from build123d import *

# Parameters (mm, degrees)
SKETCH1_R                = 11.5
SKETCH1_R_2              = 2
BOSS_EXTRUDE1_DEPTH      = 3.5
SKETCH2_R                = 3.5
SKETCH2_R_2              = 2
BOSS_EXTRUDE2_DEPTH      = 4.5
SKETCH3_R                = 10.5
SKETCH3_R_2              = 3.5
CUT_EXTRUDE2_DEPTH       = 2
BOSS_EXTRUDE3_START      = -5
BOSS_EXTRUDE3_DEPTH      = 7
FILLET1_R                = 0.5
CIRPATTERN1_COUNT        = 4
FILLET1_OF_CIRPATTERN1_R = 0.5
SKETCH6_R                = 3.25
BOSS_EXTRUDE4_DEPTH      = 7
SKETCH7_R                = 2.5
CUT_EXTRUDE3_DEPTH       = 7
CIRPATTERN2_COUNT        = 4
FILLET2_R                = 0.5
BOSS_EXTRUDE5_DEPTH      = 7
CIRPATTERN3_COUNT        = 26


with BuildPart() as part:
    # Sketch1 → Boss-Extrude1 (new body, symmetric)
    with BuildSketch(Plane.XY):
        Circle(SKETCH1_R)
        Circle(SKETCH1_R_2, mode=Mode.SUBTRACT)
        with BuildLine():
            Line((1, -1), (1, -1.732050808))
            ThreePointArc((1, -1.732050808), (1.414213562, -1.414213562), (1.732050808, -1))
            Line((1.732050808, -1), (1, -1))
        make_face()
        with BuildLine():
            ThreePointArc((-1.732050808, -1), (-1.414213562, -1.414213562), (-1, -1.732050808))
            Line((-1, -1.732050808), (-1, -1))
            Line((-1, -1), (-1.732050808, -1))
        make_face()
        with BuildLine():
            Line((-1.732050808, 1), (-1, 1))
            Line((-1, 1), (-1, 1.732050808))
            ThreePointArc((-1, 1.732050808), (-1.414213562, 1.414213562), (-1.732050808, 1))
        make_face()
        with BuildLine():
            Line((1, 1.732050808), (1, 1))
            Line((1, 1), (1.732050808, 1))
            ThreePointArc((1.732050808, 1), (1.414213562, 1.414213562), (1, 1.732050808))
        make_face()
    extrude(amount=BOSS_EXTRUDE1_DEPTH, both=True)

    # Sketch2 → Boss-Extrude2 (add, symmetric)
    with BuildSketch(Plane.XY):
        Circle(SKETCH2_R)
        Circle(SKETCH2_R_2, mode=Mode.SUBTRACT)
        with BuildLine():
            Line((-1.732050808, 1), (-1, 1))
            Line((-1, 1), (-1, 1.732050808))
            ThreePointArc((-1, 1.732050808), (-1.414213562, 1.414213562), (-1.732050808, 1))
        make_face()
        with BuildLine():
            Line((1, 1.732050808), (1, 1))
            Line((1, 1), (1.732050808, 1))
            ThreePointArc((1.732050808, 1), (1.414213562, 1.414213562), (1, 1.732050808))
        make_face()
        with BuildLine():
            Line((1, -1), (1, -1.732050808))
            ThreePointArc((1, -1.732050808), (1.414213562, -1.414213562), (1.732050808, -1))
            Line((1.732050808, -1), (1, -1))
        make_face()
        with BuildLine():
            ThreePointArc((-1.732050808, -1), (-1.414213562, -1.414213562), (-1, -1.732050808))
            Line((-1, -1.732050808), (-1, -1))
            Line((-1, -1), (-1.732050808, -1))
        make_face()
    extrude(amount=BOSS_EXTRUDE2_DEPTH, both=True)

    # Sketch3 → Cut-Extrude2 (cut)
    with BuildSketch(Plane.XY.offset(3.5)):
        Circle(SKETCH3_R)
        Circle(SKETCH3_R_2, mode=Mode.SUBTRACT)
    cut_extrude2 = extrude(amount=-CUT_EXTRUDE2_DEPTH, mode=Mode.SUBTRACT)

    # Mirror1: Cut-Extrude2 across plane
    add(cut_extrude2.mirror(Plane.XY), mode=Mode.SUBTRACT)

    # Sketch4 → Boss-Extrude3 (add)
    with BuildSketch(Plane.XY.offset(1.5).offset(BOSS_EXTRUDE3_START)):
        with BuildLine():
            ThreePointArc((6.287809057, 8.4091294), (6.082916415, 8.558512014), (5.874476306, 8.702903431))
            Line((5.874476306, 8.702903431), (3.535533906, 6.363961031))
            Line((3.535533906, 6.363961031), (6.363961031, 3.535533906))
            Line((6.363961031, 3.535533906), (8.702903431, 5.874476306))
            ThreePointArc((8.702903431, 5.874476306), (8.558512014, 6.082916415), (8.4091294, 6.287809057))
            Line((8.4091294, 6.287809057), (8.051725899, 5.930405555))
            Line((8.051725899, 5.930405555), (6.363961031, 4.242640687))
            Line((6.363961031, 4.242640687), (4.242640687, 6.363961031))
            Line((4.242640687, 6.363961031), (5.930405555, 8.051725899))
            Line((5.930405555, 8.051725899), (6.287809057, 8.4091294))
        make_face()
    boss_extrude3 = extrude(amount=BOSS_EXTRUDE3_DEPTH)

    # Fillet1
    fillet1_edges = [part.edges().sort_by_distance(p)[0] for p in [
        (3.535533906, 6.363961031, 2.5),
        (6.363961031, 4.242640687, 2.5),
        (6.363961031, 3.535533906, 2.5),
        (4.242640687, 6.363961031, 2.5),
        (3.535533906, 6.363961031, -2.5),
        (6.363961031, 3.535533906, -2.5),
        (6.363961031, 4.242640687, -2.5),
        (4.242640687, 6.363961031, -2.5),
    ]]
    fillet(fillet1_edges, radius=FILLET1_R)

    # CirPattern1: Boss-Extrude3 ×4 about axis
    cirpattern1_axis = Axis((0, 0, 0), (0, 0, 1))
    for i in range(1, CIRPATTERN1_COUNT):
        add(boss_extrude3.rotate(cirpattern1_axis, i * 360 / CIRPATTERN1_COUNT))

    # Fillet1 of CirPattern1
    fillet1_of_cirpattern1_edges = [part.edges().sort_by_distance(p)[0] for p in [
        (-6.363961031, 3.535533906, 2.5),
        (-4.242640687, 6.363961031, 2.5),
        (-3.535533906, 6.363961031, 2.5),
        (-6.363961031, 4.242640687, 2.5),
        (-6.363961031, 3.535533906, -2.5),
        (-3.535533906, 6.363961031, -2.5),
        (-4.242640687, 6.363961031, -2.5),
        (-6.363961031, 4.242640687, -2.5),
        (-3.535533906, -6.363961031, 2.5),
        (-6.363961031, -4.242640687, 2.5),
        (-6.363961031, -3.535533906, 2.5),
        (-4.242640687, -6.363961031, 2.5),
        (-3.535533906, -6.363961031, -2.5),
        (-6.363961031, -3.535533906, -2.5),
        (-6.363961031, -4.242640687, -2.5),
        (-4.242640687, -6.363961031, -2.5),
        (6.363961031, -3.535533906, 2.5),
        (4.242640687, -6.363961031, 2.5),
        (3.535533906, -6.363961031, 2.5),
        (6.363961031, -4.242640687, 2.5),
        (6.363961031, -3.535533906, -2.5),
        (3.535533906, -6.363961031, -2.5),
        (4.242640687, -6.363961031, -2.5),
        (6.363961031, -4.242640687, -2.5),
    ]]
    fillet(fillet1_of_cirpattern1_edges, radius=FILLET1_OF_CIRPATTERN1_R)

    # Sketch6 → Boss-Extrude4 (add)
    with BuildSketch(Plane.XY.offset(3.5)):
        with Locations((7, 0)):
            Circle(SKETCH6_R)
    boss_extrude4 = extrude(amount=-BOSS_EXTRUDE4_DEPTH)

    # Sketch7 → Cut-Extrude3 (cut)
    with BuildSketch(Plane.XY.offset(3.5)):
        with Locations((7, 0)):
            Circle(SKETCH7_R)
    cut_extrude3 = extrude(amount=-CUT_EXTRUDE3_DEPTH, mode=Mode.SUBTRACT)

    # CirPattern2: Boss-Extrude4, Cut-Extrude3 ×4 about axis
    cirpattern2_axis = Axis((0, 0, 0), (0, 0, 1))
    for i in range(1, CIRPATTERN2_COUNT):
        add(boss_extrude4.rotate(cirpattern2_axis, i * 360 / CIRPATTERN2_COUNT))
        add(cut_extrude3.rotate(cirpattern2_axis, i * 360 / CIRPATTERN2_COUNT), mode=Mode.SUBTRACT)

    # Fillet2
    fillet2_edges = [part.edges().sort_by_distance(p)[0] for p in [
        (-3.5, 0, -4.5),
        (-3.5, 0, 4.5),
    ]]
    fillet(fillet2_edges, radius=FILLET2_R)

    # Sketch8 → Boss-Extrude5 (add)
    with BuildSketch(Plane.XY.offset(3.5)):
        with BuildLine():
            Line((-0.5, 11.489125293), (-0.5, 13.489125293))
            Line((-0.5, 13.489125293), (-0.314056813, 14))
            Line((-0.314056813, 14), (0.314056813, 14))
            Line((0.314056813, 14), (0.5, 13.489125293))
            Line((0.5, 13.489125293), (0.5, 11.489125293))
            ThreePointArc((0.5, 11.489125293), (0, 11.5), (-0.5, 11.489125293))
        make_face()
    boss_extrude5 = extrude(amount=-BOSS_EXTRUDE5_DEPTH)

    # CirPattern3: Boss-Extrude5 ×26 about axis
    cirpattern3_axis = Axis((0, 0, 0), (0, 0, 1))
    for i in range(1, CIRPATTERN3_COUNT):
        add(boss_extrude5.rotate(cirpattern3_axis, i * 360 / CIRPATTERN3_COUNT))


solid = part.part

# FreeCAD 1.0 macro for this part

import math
import FreeCAD as App
import Part
import Sketcher
from FreeCAD import Vector
Q = App.Units.Quantity


def edges_at(feature, points):
    """Names of the edges that pass closest to the given points."""
    edges = feature.Shape.Edges
    near = lambda p: min(range(len(edges)), key=lambda i: edges[i].distToShape(Part.Vertex(*p))[0])
    return sorted({f"Edge{near(p) + 1}" for p in points})

doc = App.newDocument("Part")
body = doc.addObject("PartDesign::Body", "Body")

# Sketch on XY plane
sketch1 = body.newObject("Sketcher::SketchObject", "Sketch")
sketch1.AttachmentSupport = (doc.getObject("XY_Plane"), [""])
sketch1.MapMode = "FlatFace"
sketch1.addGeometry([
    Part.Circle(Vector(0, 0, 0), Vector(0, 0, 1), 11.5),  # 0
    Part.ArcOfCircle(Part.Circle(Vector(0, 0, 0), Vector(0, 0, 1), 2), math.radians(-120), math.radians(-60)),  # 1
    Part.LineSegment(Vector(-1, -1.7, 0), Vector(-1, -1, 0)),  # 2
    Part.LineSegment(Vector(-1, -1, 0), Vector(-1.7, -1, 0)),  # 3
    Part.ArcOfCircle(Part.Circle(Vector(0, 0, 0), Vector(0, 0, 1), 2), math.radians(150), math.radians(210)),  # 4
    Part.LineSegment(Vector(-1.7, 1, 0), Vector(-1, 1, 0)),  # 5
    Part.LineSegment(Vector(-1, 1, 0), Vector(-1, 1.7, 0)),  # 6
    Part.ArcOfCircle(Part.Circle(Vector(0, 0, 0), Vector(0, 0, 1), 2), math.radians(60), math.radians(120)),  # 7
    Part.LineSegment(Vector(1, 1.7, 0), Vector(1, 1, 0)),  # 8
    Part.LineSegment(Vector(1, 1, 0), Vector(1.7, 1, 0)),  # 9
    Part.ArcOfCircle(Part.Circle(Vector(0, 0, 0), Vector(0, 0, 1), 2), math.radians(-30), math.radians(30)),  # 10
    Part.LineSegment(Vector(1.7, -1, 0), Vector(1, -1, 0)),  # 11
    Part.LineSegment(Vector(1, -1, 0), Vector(1, -1.7, 0)),  # 12
], False)
sketch1.addConstraint([
    Sketcher.Constraint("Coincident", 1, 1, 2, 1),
    Sketcher.Constraint("Coincident", 2, 2, 3, 1),
    Sketcher.Constraint("Coincident", 3, 2, 4, 2),
    Sketcher.Constraint("Coincident", 4, 1, 5, 1),
    Sketcher.Constraint("Coincident", 5, 2, 6, 1),
    Sketcher.Constraint("Coincident", 6, 2, 7, 2),
    Sketcher.Constraint("Coincident", 7, 1, 8, 1),
    Sketcher.Constraint("Coincident", 8, 2, 9, 1),
    Sketcher.Constraint("Coincident", 9, 2, 10, 2),
    Sketcher.Constraint("Coincident", 10, 1, 11, 1),
    Sketcher.Constraint("Coincident", 11, 2, 12, 1),
    Sketcher.Constraint("Coincident", 12, 2, 1, 2),
    Sketcher.Constraint("Vertical", 2),
    Sketcher.Constraint("Horizontal", 3),
    Sketcher.Constraint("Horizontal", 5),
    Sketcher.Constraint("Vertical", 6),
    Sketcher.Constraint("Vertical", 8),
    Sketcher.Constraint("Horizontal", 9),
    Sketcher.Constraint("Horizontal", 11),
    Sketcher.Constraint("Vertical", 12),
    Sketcher.Constraint("Coincident", 0, 3, -1, 1),
    Sketcher.Constraint("Coincident", 1, 3, -1, 1),
    Sketcher.Constraint("Coincident", 4, 3, -1, 1),
    Sketcher.Constraint("Coincident", 7, 3, -1, 1),
    Sketcher.Constraint("Coincident", 10, 3, -1, 1),
    Sketcher.Constraint("Equal", 1, 4),
    Sketcher.Constraint("Equal", 4, 7),
    Sketcher.Constraint("Equal", 7, 10),
    Sketcher.Constraint("Symmetric", 2, 2, 8, 2, -1, 1),
    Sketcher.Constraint("Symmetric", 5, 2, 11, 2, -1, 1),
    Sketcher.Constraint("Symmetric", 5, 2, 8, 2, -2),
    Sketcher.Constraint("Equal", 11, 2),
    Sketcher.Constraint("Diameter", 0, 23.0),
    Sketcher.Constraint("Radius", 1, 2.0),
    Sketcher.Constraint("DistanceX", 1, 1, -1, 1, 1.0),
])
pad1 = body.newObject("PartDesign::Pad", "Pad")
pad1.Profile = sketch1
pad1.Length = 7
pad1.Midplane = True

# Sketch on XY plane
sketch2 = body.newObject("Sketcher::SketchObject", "Sketch001")
sketch2.AttachmentSupport = (doc.getObject("XY_Plane"), [""])
sketch2.MapMode = "FlatFace"
sketch2.addGeometry([
    Part.Circle(Vector(0, 0, 0), Vector(0, 0, 1), 3.5),  # 0
    Part.ArcOfCircle(Part.Circle(Vector(0, 0, 0), Vector(0, 0, 1), 2), math.radians(60), math.radians(120)),  # 1
    Part.LineSegment(Vector(1, 1.7, 0), Vector(1, 1, 0)),  # 2
    Part.LineSegment(Vector(1, 1, 0), Vector(1.7, 1, 0)),  # 3
    Part.ArcOfCircle(Part.Circle(Vector(0, 0, 0), Vector(0, 0, 1), 2), math.radians(-30), math.radians(30)),  # 4
    Part.LineSegment(Vector(1.7, -1, 0), Vector(1, -1, 0)),  # 5
    Part.LineSegment(Vector(1, -1, 0), Vector(1, -1.7, 0)),  # 6
    Part.ArcOfCircle(Part.Circle(Vector(0, 0, 0), Vector(0, 0, 1), 2), math.radians(-120), math.radians(-60)),  # 7
    Part.LineSegment(Vector(-1, -1.7, 0), Vector(-1, -1, 0)),  # 8
    Part.LineSegment(Vector(-1, -1, 0), Vector(-1.7, -1, 0)),  # 9
    Part.ArcOfCircle(Part.Circle(Vector(0, 0, 0), Vector(0, 0, 1), 2), math.radians(150), math.radians(210)),  # 10
    Part.LineSegment(Vector(-1.7, 1, 0), Vector(-1, 1, 0)),  # 11
    Part.LineSegment(Vector(-1, 1, 0), Vector(-1, 1.7, 0)),  # 12
], False)
sketch2.addConstraint([
    Sketcher.Constraint("Coincident", 1, 1, 2, 1),
    Sketcher.Constraint("Coincident", 2, 2, 3, 1),
    Sketcher.Constraint("Coincident", 3, 2, 4, 2),
    Sketcher.Constraint("Coincident", 4, 1, 5, 1),
    Sketcher.Constraint("Coincident", 5, 2, 6, 1),
    Sketcher.Constraint("Coincident", 6, 2, 7, 2),
    Sketcher.Constraint("Coincident", 7, 1, 8, 1),
    Sketcher.Constraint("Coincident", 8, 2, 9, 1),
    Sketcher.Constraint("Coincident", 9, 2, 10, 2),
    Sketcher.Constraint("Coincident", 10, 1, 11, 1),
    Sketcher.Constraint("Coincident", 11, 2, 12, 1),
    Sketcher.Constraint("Coincident", 12, 2, 1, 2),
    Sketcher.Constraint("Vertical", 2),
    Sketcher.Constraint("Horizontal", 3),
    Sketcher.Constraint("Horizontal", 5),
    Sketcher.Constraint("Vertical", 6),
    Sketcher.Constraint("Vertical", 8),
    Sketcher.Constraint("Horizontal", 9),
    Sketcher.Constraint("Horizontal", 11),
    Sketcher.Constraint("Vertical", 12),
    Sketcher.Constraint("Coincident", 0, 3, -1, 1),
    Sketcher.Constraint("Coincident", 1, 3, -1, 1),
    Sketcher.Constraint("Coincident", 4, 3, -1, 1),
    Sketcher.Constraint("Coincident", 7, 3, -1, 1),
    Sketcher.Constraint("Coincident", 10, 3, -1, 1),
    Sketcher.Constraint("Equal", 1, 4),
    Sketcher.Constraint("Equal", 4, 7),
    Sketcher.Constraint("Equal", 7, 10),
    Sketcher.Constraint("Symmetric", 2, 2, 8, 2, -1, 1),
    Sketcher.Constraint("Symmetric", 5, 2, 11, 2, -1, 1),
    Sketcher.Constraint("Symmetric", 5, 2, 8, 2, -2),
    Sketcher.Constraint("Equal", 11, 2),
    Sketcher.Constraint("Diameter", 0, 7.0),
    Sketcher.Constraint("Radius", 1, 2.0),
    Sketcher.Constraint("DistanceX", -1, 1, 1, 1, 1.0),
])
pad2 = body.newObject("PartDesign::Pad", "Pad001")
pad2.Profile = sketch2
pad2.Length = 9
pad2.Midplane = True

# Sketch on XY plane
sketch3 = body.newObject("Sketcher::SketchObject", "Sketch002")
sketch3.AttachmentSupport = (doc.getObject("XY_Plane"), [""])
sketch3.MapMode = "FlatFace"
sketch3.AttachmentOffset = App.Placement(Vector(0, 0, 3.5), App.Rotation())
sketch3.addGeometry([
    Part.Circle(Vector(0, 0, 0), Vector(0, 0, 1), 10.5),
    Part.Circle(Vector(0, 0, 0), Vector(0, 0, 1), 3.5),
], False)
sketch3.addConstraint([
    Sketcher.Constraint("Coincident", 0, 3, -1, 1),
    Sketcher.Constraint("Coincident", 1, 3, -1, 1),
    Sketcher.Constraint("Diameter", 0, 21.0),
    Sketcher.Constraint("Diameter", 1, 7.0),
])
pocket1 = body.newObject("PartDesign::Pocket", "Pocket")
pocket1.Profile = sketch3
pocket1.Length = 2
doc.recompute()

mirrored = body.newObject("PartDesign::Mirrored", "Mirrored")
mirrored.Originals = [pocket1]
mirrored.MirrorPlane = (doc.getObject("XY_Plane"), [""])
body.Tip = mirrored

# Sketch on XY plane
sketch4 = body.newObject("Sketcher::SketchObject", "Sketch003")
sketch4.AttachmentSupport = (doc.getObject("XY_Plane"), [""])
sketch4.MapMode = "FlatFace"
sketch4.AttachmentOffset = App.Placement(Vector(0, 0, -3.5), App.Rotation())
sketch4.addGeometry([
    Part.ArcOfCircle(Part.Circle(Vector(0, 0, 0), Vector(0, 0, 1), 10.5), math.radians(53.21), math.radians(55.98)),  # 0
    Part.LineSegment(Vector(5.9, 8.7, 0), Vector(3.5, 6.4, 0)),  # 1
    Part.LineSegment(Vector(3.5, 6.4, 0), Vector(6.4, 3.5, 0)),  # 2
    Part.LineSegment(Vector(6.4, 3.5, 0), Vector(8.7, 5.9, 0)),  # 3
    Part.ArcOfCircle(Part.Circle(Vector(0, 0, 0), Vector(0, 0, 1), 10.5), math.radians(34.02), math.radians(36.79)),  # 4
    Part.LineSegment(Vector(8.4, 6.3, 0), Vector(8.1, 5.9, 0)),  # 5
    Part.LineSegment(Vector(8.1, 5.9, 0), Vector(6.4, 4.2, 0)),  # 6
    Part.LineSegment(Vector(6.4, 4.2, 0), Vector(4.2, 6.4, 0)),  # 7
    Part.LineSegment(Vector(4.2, 6.4, 0), Vector(5.9, 8.1, 0)),  # 8
    Part.LineSegment(Vector(5.9, 8.1, 0), Vector(6.3, 8.4, 0)),  # 9
], False)
sketch4.addConstraint([
    Sketcher.Constraint("Coincident", 0, 2, 1, 1),
    Sketcher.Constraint("Coincident", 1, 2, 2, 1),
    Sketcher.Constraint("Coincident", 2, 2, 3, 1),
    Sketcher.Constraint("Coincident", 3, 2, 4, 1),
    Sketcher.Constraint("Coincident", 4, 2, 5, 1),
    Sketcher.Constraint("Coincident", 5, 2, 6, 1),
    Sketcher.Constraint("Coincident", 6, 2, 7, 1),
    Sketcher.Constraint("Coincident", 7, 2, 8, 1),
    Sketcher.Constraint("Coincident", 8, 2, 9, 1),
    Sketcher.Constraint("Coincident", 9, 2, 0, 1),
    Sketcher.Constraint("Coincident", 0, 3, -1, 1),
    Sketcher.Constraint("Coincident", 4, 3, -1, 1),
    Sketcher.Constraint("Equal", 0, 4),
    Sketcher.Constraint("Perpendicular", 1, 2),
    Sketcher.Constraint("Perpendicular", 2, 3),
    Sketcher.Constraint("Parallel", 3, 5),
    Sketcher.Constraint("Parallel", 5, 6),
    Sketcher.Constraint("Perpendicular", 6, 7),
    Sketcher.Constraint("Perpendicular", 7, 8),
    Sketcher.Constraint("Parallel", 8, 9),
    Sketcher.Constraint("Horizontal", 1, 2, 7, 2),
    Sketcher.Constraint("Vertical", 2, 2, 6, 2),
    Sketcher.Constraint("Equal", 1, 3),
    Sketcher.Constraint("Equal", 6, 8),
    Sketcher.Constraint("Equal", 5, 9),
    Sketcher.Constraint("Radius", 0, 10.499999),
    Sketcher.Constraint("Distance", 2, 4.0),
    Sketcher.Constraint("Distance", 7, 3.0),
    Sketcher.Constraint("Distance", 6, 2.38686),
    Sketcher.Constraint("DistanceY", -1, 1, 1, 2, 6.363961),
])
pad3 = body.newObject("PartDesign::Pad", "Pad002")
pad3.Profile = sketch4
pad3.Length = 7
doc.recompute()

fillet = body.newObject("PartDesign::Fillet", "Fillet")
fillet.Base = (pad3, edges_at(pad3, [
    (3.536, 6.364, 2.5),
    (6.364, 4.243, 2.5),
    (6.364, 3.536, 2.5),
    (4.243, 6.364, 2.5),
    (3.536, 6.364, -2.5),
    (6.364, 3.536, -2.5),
    (6.364, 4.243, -2.5),
    (4.243, 6.364, -2.5),
]))
fillet.Radius = 0.5
doc.recompute()

polarpattern = body.newObject("PartDesign::PolarPattern", "PolarPattern")
polarpattern.Originals = [pad3]
polarpattern.Axis = (doc.getObject("Z_Axis"), [""])
polarpattern.Angle = 360
polarpattern.Occurrences = 4
body.Tip = polarpattern
doc.recompute()

fillet2 = body.newObject("PartDesign::Fillet", "Fillet001")
fillet2.Base = (polarpattern, edges_at(polarpattern, [
    (-6.364, 3.536, 2.5),
    (-4.243, 6.364, 2.5),
    (-3.536, 6.364, 2.5),
    (-6.364, 4.243, 2.5),
    (-6.364, 3.536, -2.5),
    (-3.536, 6.364, -2.5),
    (-4.243, 6.364, -2.5),
    (-6.364, 4.243, -2.5),
    (-3.536, -6.364, 2.5),
    (-6.364, -4.243, 2.5),
    (-6.364, -3.536, 2.5),
    (-4.243, -6.364, 2.5),
    (-3.536, -6.364, -2.5),
    (-6.364, -3.536, -2.5),
    (-6.364, -4.243, -2.5),
    (-4.243, -6.364, -2.5),
    (6.364, -3.536, 2.5),
    (4.243, -6.364, 2.5),
    (3.536, -6.364, 2.5),
    (6.364, -4.243, 2.5),
    (6.364, -3.536, -2.5),
    (3.536, -6.364, -2.5),
    (4.243, -6.364, -2.5),
    (6.364, -4.243, -2.5),
]))
fillet2.Radius = 0.5

# Sketch on XY plane
sketch5 = body.newObject("Sketcher::SketchObject", "Sketch004")
sketch5.AttachmentSupport = (doc.getObject("XY_Plane"), [""])
sketch5.MapMode = "FlatFace"
sketch5.AttachmentOffset = App.Placement(Vector(0, 0, 3.5), App.Rotation())
sketch5.addGeometry(Part.Circle(Vector(7, 0, 0), Vector(0, 0, 1), 3.2), False)
sketch5.addConstraint([
    Sketcher.Constraint("PointOnObject", 0, 3, -1),
    Sketcher.Constraint("Diameter", 0, 6.5),
    Sketcher.Constraint("DistanceX", -1, 1, 0, 3, 7.0),
])
pad4 = body.newObject("PartDesign::Pad", "Pad003")
pad4.Profile = sketch5
pad4.Length = 7
pad4.Reversed = True

# Sketch on XY plane
sketch6 = body.newObject("Sketcher::SketchObject", "Sketch005")
sketch6.AttachmentSupport = (doc.getObject("XY_Plane"), [""])
sketch6.MapMode = "FlatFace"
sketch6.AttachmentOffset = App.Placement(Vector(0, 0, 3.5), App.Rotation())
sketch6.addGeometry(Part.Circle(Vector(7, 0, 0), Vector(0, 0, 1), 2.5), False)
sketch6.addConstraint([
    Sketcher.Constraint("PointOnObject", 0, 3, -1),
    Sketcher.Constraint("Diameter", 0, 5.0),
    Sketcher.Constraint("DistanceX", -1, 1, 0, 3, 7.0),
])
pocket2 = body.newObject("PartDesign::Pocket", "Pocket001")
pocket2.Profile = sketch6
pocket2.Length = 7
doc.recompute()

polarpattern2 = body.newObject("PartDesign::PolarPattern", "PolarPattern001")
polarpattern2.Originals = [pad4, pocket2]
polarpattern2.Axis = (doc.getObject("Z_Axis"), [""])
polarpattern2.Angle = 360
polarpattern2.Occurrences = 4
body.Tip = polarpattern2
doc.recompute()

fillet3 = body.newObject("PartDesign::Fillet", "Fillet002")
fillet3.Base = (polarpattern2, edges_at(polarpattern2, [(-3.5, 0, -4.5), (-3.5, 0, 4.5)]))
fillet3.Radius = 0.5

# Sketch on XY plane
sketch7 = body.newObject("Sketcher::SketchObject", "Sketch006")
sketch7.AttachmentSupport = (doc.getObject("XY_Plane"), [""])
sketch7.MapMode = "FlatFace"
sketch7.AttachmentOffset = App.Placement(Vector(0, 0, 3.5), App.Rotation())
sketch7.addGeometry([
    Part.LineSegment(Vector(-0.5, 13.5, 0), Vector(-0.5, 11.5, 0)),  # 0
    Part.ArcOfCircle(Part.Circle(Vector(0, 0, 0), Vector(0, 0, 1), 11.5), math.radians(87.51), math.radians(92.49)),  # 1
    Part.LineSegment(Vector(0.5, 11.5, 0), Vector(0.5, 13.5, 0)),  # 2
    Part.LineSegment(Vector(0.5, 13.5, 0), Vector(0.3, 14, 0)),  # 3
    Part.LineSegment(Vector(0.3, 14, 0), Vector(-0.3, 14, 0)),  # 4
    Part.LineSegment(Vector(-0.3, 14, 0), Vector(-0.5, 13.5, 0)),  # 5
], False)
sketch7.addConstraint([
    Sketcher.Constraint("Coincident", 0, 2, 1, 2),
    Sketcher.Constraint("Coincident", 1, 1, 2, 1),
    Sketcher.Constraint("Coincident", 2, 2, 3, 1),
    Sketcher.Constraint("Coincident", 3, 2, 4, 1),
    Sketcher.Constraint("Coincident", 4, 2, 5, 1),
    Sketcher.Constraint("Coincident", 5, 2, 0, 1),
    Sketcher.Constraint("Vertical", 0),
    Sketcher.Constraint("Vertical", 2),
    Sketcher.Constraint("Horizontal", 4),
    Sketcher.Constraint("Coincident", 1, 3, -1, 1),
    Sketcher.Constraint("Symmetric", 2, 2, 5, 2, -2),
    Sketcher.Constraint("Equal", 3, 5),
    Sketcher.Constraint("Radius", 1, 11.5),
    Sketcher.Constraint("DistanceY", 0, 2, 0, 1, 2.0),
    Sketcher.Constraint("Angle", 3, Q("110 deg")),
    Sketcher.Constraint("DistanceY", -1, 1, 3, 2, 14.0),
    Sketcher.Constraint("DistanceX", 0, 2, 1, 1, 1.0),
])
pad5 = body.newObject("PartDesign::Pad", "Pad004")
pad5.Profile = sketch7
pad5.Length = 7
pad5.Reversed = True
doc.recompute()

polarpattern3 = body.newObject("PartDesign::PolarPattern", "PolarPattern002")
polarpattern3.Originals = [pad5]
polarpattern3.Axis = (doc.getObject("Z_Axis"), [""])
polarpattern3.Angle = 360
polarpattern3.Occurrences = 26
body.Tip = polarpattern3

doc.recompute()
